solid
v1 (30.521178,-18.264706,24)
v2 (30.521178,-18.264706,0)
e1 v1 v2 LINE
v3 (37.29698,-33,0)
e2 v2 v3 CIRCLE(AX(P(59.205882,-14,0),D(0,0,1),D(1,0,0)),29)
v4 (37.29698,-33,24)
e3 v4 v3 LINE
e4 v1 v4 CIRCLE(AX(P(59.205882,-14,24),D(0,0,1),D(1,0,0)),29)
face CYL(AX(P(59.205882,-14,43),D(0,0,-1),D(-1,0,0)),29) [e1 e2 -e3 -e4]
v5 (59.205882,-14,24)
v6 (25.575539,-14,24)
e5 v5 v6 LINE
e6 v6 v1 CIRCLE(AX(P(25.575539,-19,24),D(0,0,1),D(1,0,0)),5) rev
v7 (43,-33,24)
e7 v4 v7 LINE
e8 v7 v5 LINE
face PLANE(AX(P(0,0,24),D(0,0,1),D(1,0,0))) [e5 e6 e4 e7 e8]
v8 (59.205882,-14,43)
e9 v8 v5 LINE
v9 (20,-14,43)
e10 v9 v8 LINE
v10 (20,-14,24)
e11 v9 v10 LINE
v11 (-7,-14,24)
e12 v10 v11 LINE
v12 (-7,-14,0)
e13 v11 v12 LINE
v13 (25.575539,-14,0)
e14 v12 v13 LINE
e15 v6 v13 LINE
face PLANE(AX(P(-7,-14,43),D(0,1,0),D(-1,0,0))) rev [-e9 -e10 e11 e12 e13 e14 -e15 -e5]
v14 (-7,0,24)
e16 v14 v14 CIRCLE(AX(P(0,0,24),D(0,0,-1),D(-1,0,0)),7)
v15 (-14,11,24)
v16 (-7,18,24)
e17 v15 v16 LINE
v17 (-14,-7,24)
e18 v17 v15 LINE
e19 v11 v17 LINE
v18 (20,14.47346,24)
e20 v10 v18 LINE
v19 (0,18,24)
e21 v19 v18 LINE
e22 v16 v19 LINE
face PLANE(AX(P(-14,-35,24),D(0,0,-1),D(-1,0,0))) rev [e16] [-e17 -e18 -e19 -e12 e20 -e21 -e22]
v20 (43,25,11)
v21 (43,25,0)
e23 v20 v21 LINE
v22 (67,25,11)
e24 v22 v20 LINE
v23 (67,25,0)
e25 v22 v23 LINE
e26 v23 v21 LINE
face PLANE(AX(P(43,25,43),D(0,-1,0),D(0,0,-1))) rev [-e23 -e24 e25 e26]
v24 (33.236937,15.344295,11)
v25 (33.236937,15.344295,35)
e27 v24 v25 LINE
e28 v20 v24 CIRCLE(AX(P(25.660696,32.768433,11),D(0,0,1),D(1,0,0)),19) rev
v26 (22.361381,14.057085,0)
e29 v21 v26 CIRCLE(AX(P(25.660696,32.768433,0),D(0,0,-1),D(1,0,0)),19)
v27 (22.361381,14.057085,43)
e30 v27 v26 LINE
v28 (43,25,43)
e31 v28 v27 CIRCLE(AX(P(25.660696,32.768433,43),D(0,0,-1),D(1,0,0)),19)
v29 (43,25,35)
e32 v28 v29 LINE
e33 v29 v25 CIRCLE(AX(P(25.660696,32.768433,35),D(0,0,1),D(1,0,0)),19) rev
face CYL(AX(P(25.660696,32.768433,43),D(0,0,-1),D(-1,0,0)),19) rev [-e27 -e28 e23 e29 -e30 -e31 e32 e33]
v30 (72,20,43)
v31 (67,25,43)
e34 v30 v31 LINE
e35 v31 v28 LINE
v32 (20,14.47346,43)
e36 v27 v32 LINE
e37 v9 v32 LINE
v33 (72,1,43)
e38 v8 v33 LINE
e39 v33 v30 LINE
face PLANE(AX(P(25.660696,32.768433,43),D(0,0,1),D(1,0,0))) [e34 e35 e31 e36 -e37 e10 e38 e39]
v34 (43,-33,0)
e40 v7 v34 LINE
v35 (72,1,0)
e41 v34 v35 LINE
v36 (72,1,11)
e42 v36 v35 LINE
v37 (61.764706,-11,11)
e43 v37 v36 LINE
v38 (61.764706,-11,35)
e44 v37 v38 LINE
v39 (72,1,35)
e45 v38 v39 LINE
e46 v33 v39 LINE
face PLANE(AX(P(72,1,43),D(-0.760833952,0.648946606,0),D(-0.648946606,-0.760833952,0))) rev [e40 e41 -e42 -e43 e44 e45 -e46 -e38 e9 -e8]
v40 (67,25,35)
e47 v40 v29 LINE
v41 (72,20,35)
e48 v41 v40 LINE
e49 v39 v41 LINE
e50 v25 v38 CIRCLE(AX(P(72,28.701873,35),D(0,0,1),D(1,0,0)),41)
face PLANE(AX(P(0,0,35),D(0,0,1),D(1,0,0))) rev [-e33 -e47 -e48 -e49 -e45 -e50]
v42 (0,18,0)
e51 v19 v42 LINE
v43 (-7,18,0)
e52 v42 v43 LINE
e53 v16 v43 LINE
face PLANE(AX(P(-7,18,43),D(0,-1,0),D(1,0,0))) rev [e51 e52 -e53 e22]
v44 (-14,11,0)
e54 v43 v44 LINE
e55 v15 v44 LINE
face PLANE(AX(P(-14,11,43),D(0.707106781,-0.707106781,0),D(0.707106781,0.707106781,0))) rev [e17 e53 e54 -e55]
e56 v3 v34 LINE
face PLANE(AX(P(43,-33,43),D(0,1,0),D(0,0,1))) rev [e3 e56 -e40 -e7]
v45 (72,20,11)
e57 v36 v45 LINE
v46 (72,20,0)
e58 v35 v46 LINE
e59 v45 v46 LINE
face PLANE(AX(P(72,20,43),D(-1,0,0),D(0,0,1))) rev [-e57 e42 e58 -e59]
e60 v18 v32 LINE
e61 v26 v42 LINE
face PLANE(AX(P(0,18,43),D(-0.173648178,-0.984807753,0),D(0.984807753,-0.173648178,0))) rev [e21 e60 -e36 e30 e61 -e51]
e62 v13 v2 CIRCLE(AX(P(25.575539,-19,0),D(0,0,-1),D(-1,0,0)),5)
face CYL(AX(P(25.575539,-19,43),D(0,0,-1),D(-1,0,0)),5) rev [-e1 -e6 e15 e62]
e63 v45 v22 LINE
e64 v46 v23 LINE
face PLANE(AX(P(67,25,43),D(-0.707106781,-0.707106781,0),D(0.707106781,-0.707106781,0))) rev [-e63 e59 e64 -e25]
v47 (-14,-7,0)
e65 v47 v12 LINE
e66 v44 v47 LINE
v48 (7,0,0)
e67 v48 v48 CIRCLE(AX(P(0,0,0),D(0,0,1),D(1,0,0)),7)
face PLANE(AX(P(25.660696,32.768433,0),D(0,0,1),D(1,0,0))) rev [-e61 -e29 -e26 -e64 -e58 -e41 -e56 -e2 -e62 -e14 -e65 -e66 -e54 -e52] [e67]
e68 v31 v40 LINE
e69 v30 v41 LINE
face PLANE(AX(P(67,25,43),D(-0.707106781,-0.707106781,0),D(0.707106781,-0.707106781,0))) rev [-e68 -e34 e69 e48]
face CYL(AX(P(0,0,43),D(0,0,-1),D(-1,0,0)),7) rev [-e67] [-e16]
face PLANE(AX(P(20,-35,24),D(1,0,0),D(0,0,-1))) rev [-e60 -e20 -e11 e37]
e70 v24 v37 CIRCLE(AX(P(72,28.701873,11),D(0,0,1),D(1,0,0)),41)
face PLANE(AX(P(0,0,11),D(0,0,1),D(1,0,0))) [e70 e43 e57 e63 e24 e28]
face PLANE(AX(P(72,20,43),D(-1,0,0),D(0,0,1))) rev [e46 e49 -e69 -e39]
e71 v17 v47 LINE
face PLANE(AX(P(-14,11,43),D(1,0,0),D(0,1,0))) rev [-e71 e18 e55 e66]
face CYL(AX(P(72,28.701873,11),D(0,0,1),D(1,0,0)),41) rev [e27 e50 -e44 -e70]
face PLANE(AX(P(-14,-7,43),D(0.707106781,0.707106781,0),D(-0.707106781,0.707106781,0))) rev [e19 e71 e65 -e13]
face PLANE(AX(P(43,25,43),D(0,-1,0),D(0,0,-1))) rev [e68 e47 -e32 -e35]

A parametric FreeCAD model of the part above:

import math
import FreeCAD as App
import Part
import Sketcher
Q = App.Units.Quantity

doc = App.newDocument("Part")
body = doc.addObject("PartDesign::Body", "Body")

# Sketch on XY plane
sketch1 = doc.addObject("Sketcher::SketchObject", "Sketch")
body.addObject(sketch1)
sketch1.AttachmentSupport = (doc.XY_Plane, [""])
sketch1.MapMode = "FlatFace"
sketch1.addGeometry([
    Part.LineSegment(App.Vector(-14, 11, 0), App.Vector(-14, -7, 0)),  # 0
    Part.LineSegment(App.Vector(-14, -7, 0), App.Vector(-7, -14, 0)),  # 1
    Part.LineSegment(App.Vector(-7, -14, 0), App.Vector(25.575539, -14, 0)),  # 2
    Part.ArcOfCircle(Part.Circle(App.Vector(25.575539, -19, 0), App.Vector(0, 0, 1), 5), math.radians(8.456519), math.radians(90)),  # 3
    Part.ArcOfCircle(Part.Circle(App.Vector(59.205882, -14, 0), App.Vector(0, 0, 1), 29), math.radians(-171.543481), math.radians(-139.067275)),  # 4
    Part.LineSegment(App.Vector(37.29698, -33, 0), App.Vector(43, -33, 0)),  # 5
    Part.LineSegment(App.Vector(43, -33, 0), App.Vector(72, 1, 0)),  # 6
    Part.LineSegment(App.Vector(72, 1, 0), App.Vector(72, 20, 0)),  # 7
    Part.LineSegment(App.Vector(72, 20, 0), App.Vector(67, 25, 0)),  # 8
    Part.LineSegment(App.Vector(67, 25, 0), App.Vector(43, 25, 0)),  # 9
    Part.ArcOfCircle(Part.Circle(App.Vector(25.660696, 32.768433, 0), App.Vector(0, 0, 1), 19), math.radians(-100), math.radians(-24.133548)),  # 10
    Part.LineSegment(App.Vector(22.361381, 14.057085, 0), App.Vector(0, 18, 0)),  # 11
    Part.LineSegment(App.Vector(0, 18, 0), App.Vector(-7, 18, 0)),  # 12
    Part.LineSegment(App.Vector(-7, 18, 0), App.Vector(-14, 11, 0)),  # 13
    Part.Circle(App.Vector(0, 0, 0), App.Vector(0, 0, 1), 7),  # 14
], False)
sketch1.addConstraint([
    Sketcher.Constraint("Coincident", 0, 2, 1, 1),
    Sketcher.Constraint("Coincident", 1, 2, 2, 1),
    Sketcher.Constraint("Tangent", 2, 2, 3, 2),
    Sketcher.Constraint("Tangent", 3, 1, 4, 1),
    Sketcher.Constraint("Coincident", 4, 2, 5, 1),
    Sketcher.Constraint("Coincident", 5, 2, 6, 1),
    Sketcher.Constraint("Coincident", 6, 2, 7, 1),
    Sketcher.Constraint("Coincident", 7, 2, 8, 1),
    Sketcher.Constraint("Coincident", 8, 2, 9, 1),
    Sketcher.Constraint("Coincident", 9, 2, 10, 2),
    Sketcher.Constraint("Tangent", 10, 1, 11, 1),
    Sketcher.Constraint("Coincident", 11, 2, 12, 1),
    Sketcher.Constraint("Coincident", 12, 2, 13, 1),
    Sketcher.Constraint("Coincident", 13, 2, 0, 1),
    Sketcher.Constraint("Vertical", 0),
    Sketcher.Constraint("Horizontal", 2),
    Sketcher.Constraint("Horizontal", 5),
    Sketcher.Constraint("Vertical", 7),
    Sketcher.Constraint("Horizontal", 9),
    Sketcher.Constraint("Horizontal", 12),
    Sketcher.Constraint("Coincident", 14, 3, -1, 1),
    Sketcher.Constraint("PointOnObject", 11, 2, -2),
    Sketcher.Constraint("Parallel", 1, 8),
    Sketcher.Constraint("Perpendicular", 8, 13),
    Sketcher.Constraint("Horizontal", 4, 3, 1, 2),
    Sketcher.Constraint("Vertical", 5, 2, 9, 2),
    Sketcher.Constraint("Vertical", 1, 2, 12, 2),
    Sketcher.Constraint("Equal", 1, 13),
    Sketcher.Constraint("Diameter", 14, 14.0),
    Sketcher.Constraint("Radius", 3, 5.0),
    Sketcher.Constraint("Radius", 4, 29.0),
    Sketcher.Constraint("Radius", 10, 19.0),
    Sketcher.Constraint("DistanceX", 9, 2, 9, 1, 24.0),
    Sketcher.Constraint("DistanceX", 12, 2, 12, 1, 7.0),
    Sketcher.Constraint("DistanceY", 0, 2, 0, 1, 18.0),
    Sketcher.Constraint("DistanceY", 7, 1, 7, 2, 19.0),
    Sketcher.Constraint("Angle", 11, Q("170 deg")),
    Sketcher.Constraint("DistanceY", 3, 3, -1, 1, 19.0),
    Sketcher.Constraint("DistanceX", 0, 2, -1, 1, 14.0),
    Sketcher.Constraint("DistanceY", 4, 2, -1, 1, 33.0),
    Sketcher.Constraint("DistanceX", -1, 1, 5, 2, 43.0),
    Sketcher.Constraint("DistanceX", -1, 1, 6, 2, 72.0),
    Sketcher.Constraint("DistanceY", -1, 1, 6, 2, 1.0),
    Sketcher.Constraint("DistanceX", 2, 1, 2, 2, 32.575539),
])
pad1 = doc.addObject("PartDesign::Pad", "Pad")
body.addObject(pad1)
pad1.Profile = sketch1
pad1.Length = 43

# Sketch on XZ plane
sketch2 = doc.addObject("Sketcher::SketchObject", "Sketch001")
body.addObject(sketch2)
sketch2.AttachmentSupport = (doc.XZ_Plane, [""])
sketch2.MapMode = "FlatFace"
sketch2.addGeometry([
    Part.LineSegment(App.Vector(-14, 24, 0), App.Vector(-14, 43, 0)),
    Part.LineSegment(App.Vector(-14, 43, 0), App.Vector(20, 43, 0)),
    Part.LineSegment(App.Vector(20, 43, 0), App.Vector(20, 24, 0)),
    Part.LineSegment(App.Vector(20, 24, 0), App.Vector(-14, 24, 0)),
], False)
sketch2.addConstraint([
    Sketcher.Constraint("Coincident", 0, 2, 1, 1),
    Sketcher.Constraint("Coincident", 1, 2, 2, 1),
    Sketcher.Constraint("Coincident", 2, 2, 3, 1),
    Sketcher.Constraint("Coincident", 3, 2, 0, 1),
    Sketcher.Constraint("Vertical", 0),
    Sketcher.Constraint("Horizontal", 1),
    Sketcher.Constraint("Vertical", 2),
    Sketcher.Constraint("Horizontal", 3),
    Sketcher.Constraint("DistanceX", 1, 1, 1, 2, 34.0),
    Sketcher.Constraint("DistanceY", 0, 1, 0, 2, 19.0),
    Sketcher.Constraint("DistanceX", 0, 2, -1, 1, 14.0),
    Sketcher.Constraint("DistanceY", -1, 1, 0, 2, 43.0),
])
pocket1 = doc.addObject("PartDesign::Pocket", "Pocket")
body.addObject(pocket1)
pocket1.Profile = sketch2
pocket1.Length = 70
pocket1.Midplane = True

# Sketch on XY plane
sketch3 = doc.addObject("Sketcher::SketchObject", "Sketch002")
body.addObject(sketch3)
sketch3.AttachmentSupport = (doc.XY_Plane, [""])
sketch3.MapMode = "FlatFace"
sketch3.AttachmentOffset = App.Placement(App.Vector(0, 0, 43), App.Rotation())
sketch3.addGeometry([
    Part.LineSegment(App.Vector(16.099161, -14, 0), App.Vector(16.099161, -52.983271, 0)),
    Part.LineSegment(App.Vector(16.099161, -52.983271, 0), App.Vector(78.597787, -52.983271, 0)),
    Part.LineSegment(App.Vector(78.597787, -52.983271, 0), App.Vector(78.597787, -14, 0)),
    Part.LineSegment(App.Vector(78.597787, -14, 0), App.Vector(16.099161, -14, 0)),
], False)
sketch3.addConstraint([
    Sketcher.Constraint("Coincident", 0, 2, 1, 1),
    Sketcher.Constraint("Coincident", 1, 2, 2, 1),
    Sketcher.Constraint("Coincident", 2, 2, 3, 1),
    Sketcher.Constraint("Coincident", 3, 2, 0, 1),
    Sketcher.Constraint("Vertical", 0),
    Sketcher.Constraint("Horizontal", 1),
    Sketcher.Constraint("Vertical", 2),
    Sketcher.Constraint("Horizontal", 3),
    Sketcher.Constraint("DistanceY", 2, 2, -1, 1, 14.0),
    Sketcher.Constraint("DistanceY", 0, 2, 0, 1, 38.983271),
    Sketcher.Constraint("DistanceX", 1, 1, 1, 2, 62.498626),
    Sketcher.Constraint("DistanceX", -1, 1, 0, 2, 16.099161),
])
pocket2 = doc.addObject("PartDesign::Pocket", "Pocket001")
body.addObject(pocket2)
pocket2.Profile = sketch3
pocket2.Length = 19

# Sketch on XY plane
sketch4 = doc.addObject("Sketcher::SketchObject", "Sketch003")
body.addObject(sketch4)
sketch4.AttachmentSupport = (doc.XY_Plane, [""])
sketch4.MapMode = "FlatFace"
sketch4.AttachmentOffset = App.Placement(App.Vector(0, 0, 11), App.Rotation())
sketch4.addGeometry([
    Part.ArcOfCircle(Part.Circle(App.Vector(72, 28.701873, 0), App.Vector(0, 0, 1), 41), math.radians(-160.986277), math.radians(-104.456288)),
    Part.ArcOfCircle(Part.Circle(App.Vector(72, 28.701873, 0), App.Vector(0, 0, 1), 41), math.radians(-104.456288), math.radians(0)),
    Part.ArcOfCircle(Part.Circle(App.Vector(72, 28.701873, 0), App.Vector(0, 0, 1), 41), math.radians(0), math.radians(199.013723)),
], False)
sketch4.addConstraint([
    Sketcher.Constraint("Tangent", 0, 2, 1, 1),
    Sketcher.Constraint("Tangent", 1, 2, 2, 1),
    Sketcher.Constraint("Tangent", 2, 2, 0, 1),
    Sketcher.Constraint("Horizontal", 2, 3, 1, 2),
    Sketcher.Constraint("Radius", 0, 41.0),
    Sketcher.Constraint("DistanceX", -1, 1, 0, 3, 72.0),
    Sketcher.Constraint("DistanceY", 0, 2, -1, 1, 11.0),
    Sketcher.Constraint("DistanceX", 2, 2, 0, 2, 28.527769),
    Sketcher.Constraint("DistanceY", 2, 2, 0, 3, 13.357579),
])
pocket3 = doc.addObject("PartDesign::Pocket", "Pocket002")
body.addObject(pocket3)
pocket3.Profile = sketch4
pocket3.Length = 24
pocket3.Reversed = True

doc.recompute()
